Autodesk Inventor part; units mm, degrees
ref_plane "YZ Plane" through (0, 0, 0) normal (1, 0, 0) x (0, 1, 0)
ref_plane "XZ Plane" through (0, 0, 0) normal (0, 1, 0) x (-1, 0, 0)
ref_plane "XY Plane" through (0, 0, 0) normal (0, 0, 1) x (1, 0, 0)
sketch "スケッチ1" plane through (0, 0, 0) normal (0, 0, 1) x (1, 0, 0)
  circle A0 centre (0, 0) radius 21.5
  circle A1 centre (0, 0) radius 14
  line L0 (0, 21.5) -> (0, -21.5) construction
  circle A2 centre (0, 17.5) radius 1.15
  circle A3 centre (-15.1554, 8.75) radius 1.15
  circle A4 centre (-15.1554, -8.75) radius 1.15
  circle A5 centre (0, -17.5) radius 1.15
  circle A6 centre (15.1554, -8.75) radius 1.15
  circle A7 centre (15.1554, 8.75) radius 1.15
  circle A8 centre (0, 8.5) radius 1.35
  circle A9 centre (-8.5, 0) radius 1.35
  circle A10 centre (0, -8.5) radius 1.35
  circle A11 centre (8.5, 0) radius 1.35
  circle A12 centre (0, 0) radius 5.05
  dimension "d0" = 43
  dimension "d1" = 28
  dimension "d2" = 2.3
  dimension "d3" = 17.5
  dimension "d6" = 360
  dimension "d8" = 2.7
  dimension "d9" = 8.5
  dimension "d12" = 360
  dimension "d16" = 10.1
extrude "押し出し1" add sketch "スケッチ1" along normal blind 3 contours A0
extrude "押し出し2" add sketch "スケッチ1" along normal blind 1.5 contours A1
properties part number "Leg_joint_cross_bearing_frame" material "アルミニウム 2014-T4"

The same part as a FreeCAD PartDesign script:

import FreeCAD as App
import Part
import Sketcher

V = App.Vector
Q = App.Units.Quantity

doc = App.newDocument("Part")
body = doc.addObject("PartDesign::Body", "Body")

# Sketch on XY plane
sketch1 = doc.addObject("Sketcher::SketchObject", "Sketch")
body.addObject(sketch1)
sketch1.AttachmentSupport = (doc.XY_Plane, [""])
sketch1.MapMode = "FlatFace"
sketch1.addGeometry(Part.Circle(V(0, 0, 0), V(0, 0, 1), 21.5), False)
sketch1.addGeometry(Part.Circle(V(-15.1554, -8.75, 0), V(0, 0, 1), 1.15), False)
sketch1.addGeometry(Part.Circle(V(0, -17.5, 0), V(0, 0, 1), 1.15), False)
sketch1.addGeometry(Part.Circle(V(15.1554, -8.75, 0), V(0, 0, 1), 1.15), False)
sketch1.addGeometry(Part.Circle(V(-15.1554, 8.75, 0), V(0, 0, 1), 1.15), False)
sketch1.addGeometry(Part.Circle(V(0, 0, 0), V(0, 0, 1), 14), False)
sketch1.addGeometry(Part.Circle(V(15.1554, 8.75, 0), V(0, 0, 1), 1.15), False)
sketch1.addGeometry(Part.Circle(V(0, 17.5, 0), V(0, 0, 1), 1.15), False)
sketch1.addConstraint(Sketcher.Constraint("Coincident", 0, 3, -1, 1))
sketch1.addConstraint(Sketcher.Constraint("Coincident", 5, 3, -1, 1))
sketch1.addConstraint(Sketcher.Constraint("Equal", 1, 2))
sketch1.addConstraint(Sketcher.Constraint("Equal", 2, 3))
sketch1.addConstraint(Sketcher.Constraint("Equal", 3, 4))
sketch1.addConstraint(Sketcher.Constraint("Equal", 4, 6))
sketch1.addConstraint(Sketcher.Constraint("Equal", 6, 7))
sketch1.addConstraint(Sketcher.Constraint("Symmetric", 3, 3, 4, 3, -1, 1))
sketch1.addConstraint(Sketcher.Constraint("Symmetric", 1, 3, 6, 3, -1, 1))
sketch1.addConstraint(Sketcher.Constraint("Symmetric", 2, 3, 7, 3, -1, 1))
sketch1.addConstraint(Sketcher.Constraint("Symmetric", 1, 3, 3, 3, -2))
sketch1.addConstraint(Sketcher.Constraint("PointOnObject", 2, 3, -2))
sketch1.addConstraint(Sketcher.Constraint("Diameter", 0, Q("43 mm")))
sketch1.addConstraint(Sketcher.Constraint("Diameter", 5, Q("28 mm")))
sketch1.addConstraint(Sketcher.Constraint("Diameter", 1, Q("2.3 mm")))
sketch1.addConstraint(Sketcher.Constraint("DistanceY", 2, 3, -1, 1, Q("17.5 mm")))
sketch1.addConstraint(Sketcher.Constraint("DistanceY", 1, 3, 4, 3, Q("17.5 mm")))
sketch1.addConstraint(Sketcher.Constraint("DistanceX", 1, 3, -1, 1, Q("15.1554 mm")))
pad1 = doc.addObject("PartDesign::Pad", "Pad")
body.addObject(pad1)
pad1.Profile = sketch1
pad1.Length = 3

# Sketch on XY plane
sketch2 = doc.addObject("Sketcher::SketchObject", "Sketch001")
body.addObject(sketch2)
sketch2.AttachmentSupport = (doc.XY_Plane, [""])
sketch2.MapMode = "FlatFace"
sketch2.addGeometry(Part.Circle(V(0, 0, 0), V(0, 0, 1), 14), False)
sketch2.addGeometry(Part.Circle(V(0, -8.5, 0), V(0, 0, 1), 1.35), False)
sketch2.addGeometry(Part.Circle(V(-8.5, 0, 0), V(0, 0, 1), 1.35), False)
sketch2.addGeometry(Part.Circle(V(0, 0, 0), V(0, 0, 1), 5.05), False)
sketch2.addGeometry(Part.Circle(V(8.5, 0, 0), V(0, 0, 1), 1.35), False)
sketch2.addGeometry(Part.Circle(V(0, 8.5, 0), V(0, 0, 1), 1.35), False)
sketch2.addConstraint(Sketcher.Constraint("Coincident", 0, 3, -1, 1))
sketch2.addConstraint(Sketcher.Constraint("Coincident", 3, 3, -1, 1))
sketch2.addConstraint(Sketcher.Constraint("Equal", 1, 2))
sketch2.addConstraint(Sketcher.Constraint("Equal", 2, 4))
sketch2.addConstraint(Sketcher.Constraint("Equal", 4, 5))
sketch2.addConstraint(Sketcher.Constraint("Symmetric", 2, 3, 4, 3, -1, 1))
sketch2.addConstraint(Sketcher.Constraint("Symmetric", 1, 3, 5, 3, -1, 1))
sketch2.addConstraint(Sketcher.Constraint("PointOnObject", 1, 3, -2))
sketch2.addConstraint(Sketcher.Constraint("PointOnObject", 2, 3, -1))
sketch2.addConstraint(Sketcher.Constraint("Diameter", 0, Q("28 mm")))
sketch2.addConstraint(Sketcher.Constraint("Diameter", 1, Q("2.7 mm")))
sketch2.addConstraint(Sketcher.Constraint("Diameter", 3, Q("10.1 mm")))
sketch2.addConstraint(Sketcher.Constraint("DistanceY", 1, 3, -1, 1, Q("8.5 mm")))
sketch2.addConstraint(Sketcher.Constraint("DistanceX", 2, 3, -1, 1, Q("8.5 mm")))
pad2 = doc.addObject("PartDesign::Pad", "Pad001")
body.addObject(pad2)
pad2.Profile = sketch2
pad2.Length = 1.5

doc.recompute()
